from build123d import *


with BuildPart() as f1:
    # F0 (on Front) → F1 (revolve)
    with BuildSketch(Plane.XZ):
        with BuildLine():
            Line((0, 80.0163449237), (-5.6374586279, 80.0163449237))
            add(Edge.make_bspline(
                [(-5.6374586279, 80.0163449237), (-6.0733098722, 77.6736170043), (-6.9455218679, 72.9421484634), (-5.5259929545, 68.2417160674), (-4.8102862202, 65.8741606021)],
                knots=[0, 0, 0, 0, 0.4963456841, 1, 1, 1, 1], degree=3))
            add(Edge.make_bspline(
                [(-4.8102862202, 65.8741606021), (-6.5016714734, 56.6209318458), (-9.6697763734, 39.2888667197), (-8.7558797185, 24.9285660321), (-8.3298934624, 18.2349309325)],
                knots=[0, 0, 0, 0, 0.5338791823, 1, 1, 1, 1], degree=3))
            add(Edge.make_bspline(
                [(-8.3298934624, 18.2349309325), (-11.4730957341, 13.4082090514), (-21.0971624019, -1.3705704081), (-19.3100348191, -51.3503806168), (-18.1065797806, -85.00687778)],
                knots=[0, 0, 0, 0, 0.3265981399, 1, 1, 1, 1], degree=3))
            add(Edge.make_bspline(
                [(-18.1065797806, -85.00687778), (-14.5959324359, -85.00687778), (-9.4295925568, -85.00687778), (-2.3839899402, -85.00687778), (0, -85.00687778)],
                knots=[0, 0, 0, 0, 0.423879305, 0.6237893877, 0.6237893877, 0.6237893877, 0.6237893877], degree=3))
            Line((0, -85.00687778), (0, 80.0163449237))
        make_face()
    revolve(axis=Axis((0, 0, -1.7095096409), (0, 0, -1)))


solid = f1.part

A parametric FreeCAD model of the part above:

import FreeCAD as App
import Part
import Sketcher

doc = App.newDocument("Part")
body = doc.addObject("PartDesign::Body", "Body")

sketch1 = body.newObject("Sketcher::SketchObject", "Sketch")
sketch1.AttachmentSupport = (doc.getObject("XZ_Plane"), [""])
sketch1.MapMode = "FlatFace"
sketch1.addGeometry([
    Part.LineSegment(App.Vector(0, 80.016345, 0), App.Vector(-5.637459, 80.016345, 0)),
    Part.BSplineCurve([App.Vector(-5.637459, 80.016345, 0), App.Vector(-6.07331, 77.673617, 0), App.Vector(-6.945522, 72.942148, 0), App.Vector(-5.525993, 68.241716, 0), App.Vector(-4.810286, 65.874161, 0)], [4, 1, 4], [0, 0.496345684, 1], False, 3, [1, 1, 1, 1, 1], False),
    Part.BSplineCurve([App.Vector(-4.810286, 65.874161, 0), App.Vector(-6.501671, 56.620932, 0), App.Vector(-9.669776, 39.288867, 0), App.Vector(-8.75588, 24.928566, 0), App.Vector(-8.329893, 18.234931, 0)], [4, 1, 4], [0, 0.533879182, 1], False, 3, [1, 1, 1, 1, 1], False),
    Part.BSplineCurve([App.Vector(-8.329893, 18.234931, 0), App.Vector(-11.473096, 13.408209, 0), App.Vector(-21.097162, -1.37057, 0), App.Vector(-19.310035, -51.350381, 0), App.Vector(-18.10658, -85.006878, 0)], [4, 1, 4], [0, 0.32659814, 1], False, 3, [1, 1, 1, 1, 1], False),
    Part.BSplineCurve([App.Vector(-18.10658, -85.006878, 0), App.Vector(-14.595932, -85.006878, 0), App.Vector(-9.429593, -85.006878, 0), App.Vector(-2.38399, -85.006878, 0), App.Vector(0, -85.006878, 0)], [4, 1, 4], [0, 0.423879305, 0.623789388], False, 3, [1, 1, 1, 1, 1], False),
    Part.LineSegment(App.Vector(0, -85.006878, 0), App.Vector(0, 80.016345, 0)),
], False)
sketch1.addConstraint([
    Sketcher.Constraint("Block", 1),
    Sketcher.Constraint("Block", 2),
    Sketcher.Constraint("Block", 3),
    Sketcher.Constraint("Block", 4),
    Sketcher.Constraint("Coincident", 0, 2, 1, 1),
    Sketcher.Constraint("Coincident", 4, 2, 5, 1),
    Sketcher.Constraint("Coincident", 5, 2, 0, 1),
    Sketcher.Constraint("Horizontal", 0),
    Sketcher.Constraint("Vertical", 5),
])
revolution = body.newObject("PartDesign::Revolution", "Revolution")
revolution.Profile = sketch1
revolution.ReferenceAxis = (sketch1, ["V_Axis"])
revolution.Angle = 360

doc.recompute()
